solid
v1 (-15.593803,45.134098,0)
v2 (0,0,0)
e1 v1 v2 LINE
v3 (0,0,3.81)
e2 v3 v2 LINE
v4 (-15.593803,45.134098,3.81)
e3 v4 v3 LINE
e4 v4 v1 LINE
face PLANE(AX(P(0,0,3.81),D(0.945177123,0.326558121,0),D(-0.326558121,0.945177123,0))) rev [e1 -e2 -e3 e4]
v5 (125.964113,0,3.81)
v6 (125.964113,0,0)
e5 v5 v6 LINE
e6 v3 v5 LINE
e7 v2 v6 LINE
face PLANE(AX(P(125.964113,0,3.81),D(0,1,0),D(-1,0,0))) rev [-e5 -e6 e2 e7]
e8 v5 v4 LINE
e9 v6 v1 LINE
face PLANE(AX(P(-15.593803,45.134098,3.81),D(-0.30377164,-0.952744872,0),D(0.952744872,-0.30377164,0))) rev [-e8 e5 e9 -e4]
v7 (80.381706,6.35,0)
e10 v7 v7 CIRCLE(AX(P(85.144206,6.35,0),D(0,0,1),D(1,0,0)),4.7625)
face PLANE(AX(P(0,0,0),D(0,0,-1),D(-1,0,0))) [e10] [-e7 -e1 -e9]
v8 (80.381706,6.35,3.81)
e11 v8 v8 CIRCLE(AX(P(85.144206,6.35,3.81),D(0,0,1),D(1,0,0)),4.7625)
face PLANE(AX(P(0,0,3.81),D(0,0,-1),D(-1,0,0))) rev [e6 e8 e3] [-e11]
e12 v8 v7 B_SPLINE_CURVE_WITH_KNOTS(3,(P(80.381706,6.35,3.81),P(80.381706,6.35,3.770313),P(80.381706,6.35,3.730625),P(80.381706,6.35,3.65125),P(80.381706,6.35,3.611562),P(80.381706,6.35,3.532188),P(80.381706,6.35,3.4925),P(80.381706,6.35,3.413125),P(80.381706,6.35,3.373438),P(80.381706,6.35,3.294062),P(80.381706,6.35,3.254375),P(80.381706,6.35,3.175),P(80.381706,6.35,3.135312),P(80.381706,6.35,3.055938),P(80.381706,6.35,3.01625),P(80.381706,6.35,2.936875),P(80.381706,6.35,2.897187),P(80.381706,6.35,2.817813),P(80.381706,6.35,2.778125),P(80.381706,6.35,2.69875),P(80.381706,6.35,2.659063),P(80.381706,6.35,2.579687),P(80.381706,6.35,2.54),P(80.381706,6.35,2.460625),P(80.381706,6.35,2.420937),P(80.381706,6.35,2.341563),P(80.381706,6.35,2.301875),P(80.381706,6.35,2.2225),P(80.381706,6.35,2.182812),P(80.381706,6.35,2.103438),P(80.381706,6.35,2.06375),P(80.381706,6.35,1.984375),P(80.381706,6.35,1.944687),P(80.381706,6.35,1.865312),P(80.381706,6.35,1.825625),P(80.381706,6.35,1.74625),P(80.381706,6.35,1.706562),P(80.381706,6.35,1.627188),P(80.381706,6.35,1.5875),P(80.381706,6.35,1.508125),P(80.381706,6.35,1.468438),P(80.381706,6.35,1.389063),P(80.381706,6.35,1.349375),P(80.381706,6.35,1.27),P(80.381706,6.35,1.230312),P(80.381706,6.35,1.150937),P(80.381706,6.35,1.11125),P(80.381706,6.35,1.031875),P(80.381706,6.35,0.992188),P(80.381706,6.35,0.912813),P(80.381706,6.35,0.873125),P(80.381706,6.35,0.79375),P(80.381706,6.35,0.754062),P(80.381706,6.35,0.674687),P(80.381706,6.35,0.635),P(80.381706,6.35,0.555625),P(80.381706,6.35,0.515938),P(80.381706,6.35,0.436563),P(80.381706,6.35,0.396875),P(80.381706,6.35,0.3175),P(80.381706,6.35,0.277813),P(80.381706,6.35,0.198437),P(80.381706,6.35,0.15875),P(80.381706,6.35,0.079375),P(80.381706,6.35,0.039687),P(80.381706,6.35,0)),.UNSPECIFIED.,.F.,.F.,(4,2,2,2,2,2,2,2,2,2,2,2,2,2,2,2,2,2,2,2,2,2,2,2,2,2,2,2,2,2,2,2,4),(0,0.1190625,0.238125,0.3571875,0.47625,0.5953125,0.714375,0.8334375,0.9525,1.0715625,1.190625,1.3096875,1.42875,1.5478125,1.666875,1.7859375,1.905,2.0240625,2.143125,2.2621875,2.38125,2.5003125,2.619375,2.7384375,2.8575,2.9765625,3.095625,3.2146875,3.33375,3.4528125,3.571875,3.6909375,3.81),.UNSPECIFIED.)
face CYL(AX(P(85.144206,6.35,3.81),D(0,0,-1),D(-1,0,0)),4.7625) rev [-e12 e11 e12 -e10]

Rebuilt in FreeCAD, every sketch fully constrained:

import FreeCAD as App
import Part
import Sketcher
from FreeCAD import Vector
Q = App.Units.Quantity

doc = App.newDocument("Part")
body = doc.addObject("PartDesign::Body", "Body")

# Sketch on XY plane
sketch1 = body.newObject("Sketcher::SketchObject", "Sketch")
sketch1.AttachmentSupport = (doc.getObject("XY_Plane"), [""])
sketch1.MapMode = "FlatFace"
sketch1.addGeometry([
    Part.LineSegment(Vector(-15.6, 45.1, 0), Vector(0, 0, 0)),
    Part.LineSegment(Vector(0, 0, 0), Vector(126, 0, 0)),
    Part.LineSegment(Vector(126, 0, 0), Vector(-15.6, 45.1, 0)),
    Part.Circle(Vector(85.1, 6.3, 0), Vector(0, 0, 1), 4.8),
], False)
sketch1.addConstraint([
    Sketcher.Constraint("Coincident", 0, 2, 1, 1),
    Sketcher.Constraint("Coincident", 1, 2, 2, 1),
    Sketcher.Constraint("Coincident", 2, 2, 0, 1),
    Sketcher.Constraint("Horizontal", 1),
    Sketcher.Constraint("Coincident", 0, 2, -1, 1),
    Sketcher.Constraint("Diameter", 3, Q("0.375 in")),
    Sketcher.Constraint("Distance", 0, Q("1.88 in")),
    Sketcher.Constraint("DistanceY", -1, 1, 3, 3, Q("0.25 in")),
    Sketcher.Constraint("Angle", 0, Q("-70.94 deg")),
    Sketcher.Constraint("DistanceX", 1, 1, 1, 2, 125.964113),
    Sketcher.Constraint("DistanceX", 2, 2, 3, 3, 100.73801),
])
pad1 = body.newObject("PartDesign::Pad", "Pad")
pad1.Profile = sketch1
pad1.Length = Q("0.15 in")

doc.recompute()
